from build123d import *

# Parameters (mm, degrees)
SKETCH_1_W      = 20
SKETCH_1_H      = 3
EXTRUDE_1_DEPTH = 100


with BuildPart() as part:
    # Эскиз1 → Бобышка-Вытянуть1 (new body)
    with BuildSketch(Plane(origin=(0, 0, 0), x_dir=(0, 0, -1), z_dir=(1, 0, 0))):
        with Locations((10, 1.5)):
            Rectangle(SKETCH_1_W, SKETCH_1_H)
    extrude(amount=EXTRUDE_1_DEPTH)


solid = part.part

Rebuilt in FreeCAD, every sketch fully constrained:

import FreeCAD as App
import Part
import Sketcher
from FreeCAD import Vector
Q = App.Units.Quantity

doc = App.newDocument("Part")
body = doc.addObject("PartDesign::Body", "Body")

# Sketch on YZ plane
sketch1 = body.newObject("Sketcher::SketchObject", "Sketch")
sketch1.AttachmentSupport = (doc.getObject("YZ_Plane"), [""])
sketch1.MapMode = "FlatFace"
sketch1.addGeometry([
    Part.LineSegment(Vector(3, 0, 0), Vector(0, 0, 0)),
    Part.LineSegment(Vector(0, 0, 0), Vector(0, -20, 0)),
    Part.LineSegment(Vector(0, -20, 0), Vector(3, -20, 0)),
    Part.LineSegment(Vector(3, -20, 0), Vector(3, 0, 0)),
], False)
sketch1.addConstraint([
    Sketcher.Constraint("Coincident", 0, 2, 1, 1),
    Sketcher.Constraint("Coincident", 1, 2, 2, 1),
    Sketcher.Constraint("Coincident", 2, 2, 3, 1),
    Sketcher.Constraint("Coincident", 3, 2, 0, 1),
    Sketcher.Constraint("Horizontal", 0),
    Sketcher.Constraint("Vertical", 1),
    Sketcher.Constraint("Horizontal", 2),
    Sketcher.Constraint("Vertical", 3),
    Sketcher.Constraint("Coincident", 0, 2, -1, 1),
    Sketcher.Constraint("DistanceX", 0, 2, 0, 1, Q("3 mm")),
    Sketcher.Constraint("DistanceY", 1, 2, 1, 1, Q("20 mm")),
])
pad1 = body.newObject("PartDesign::Pad", "Pad")
pad1.Profile = sketch1
pad1.Length = 100

doc.recompute()
